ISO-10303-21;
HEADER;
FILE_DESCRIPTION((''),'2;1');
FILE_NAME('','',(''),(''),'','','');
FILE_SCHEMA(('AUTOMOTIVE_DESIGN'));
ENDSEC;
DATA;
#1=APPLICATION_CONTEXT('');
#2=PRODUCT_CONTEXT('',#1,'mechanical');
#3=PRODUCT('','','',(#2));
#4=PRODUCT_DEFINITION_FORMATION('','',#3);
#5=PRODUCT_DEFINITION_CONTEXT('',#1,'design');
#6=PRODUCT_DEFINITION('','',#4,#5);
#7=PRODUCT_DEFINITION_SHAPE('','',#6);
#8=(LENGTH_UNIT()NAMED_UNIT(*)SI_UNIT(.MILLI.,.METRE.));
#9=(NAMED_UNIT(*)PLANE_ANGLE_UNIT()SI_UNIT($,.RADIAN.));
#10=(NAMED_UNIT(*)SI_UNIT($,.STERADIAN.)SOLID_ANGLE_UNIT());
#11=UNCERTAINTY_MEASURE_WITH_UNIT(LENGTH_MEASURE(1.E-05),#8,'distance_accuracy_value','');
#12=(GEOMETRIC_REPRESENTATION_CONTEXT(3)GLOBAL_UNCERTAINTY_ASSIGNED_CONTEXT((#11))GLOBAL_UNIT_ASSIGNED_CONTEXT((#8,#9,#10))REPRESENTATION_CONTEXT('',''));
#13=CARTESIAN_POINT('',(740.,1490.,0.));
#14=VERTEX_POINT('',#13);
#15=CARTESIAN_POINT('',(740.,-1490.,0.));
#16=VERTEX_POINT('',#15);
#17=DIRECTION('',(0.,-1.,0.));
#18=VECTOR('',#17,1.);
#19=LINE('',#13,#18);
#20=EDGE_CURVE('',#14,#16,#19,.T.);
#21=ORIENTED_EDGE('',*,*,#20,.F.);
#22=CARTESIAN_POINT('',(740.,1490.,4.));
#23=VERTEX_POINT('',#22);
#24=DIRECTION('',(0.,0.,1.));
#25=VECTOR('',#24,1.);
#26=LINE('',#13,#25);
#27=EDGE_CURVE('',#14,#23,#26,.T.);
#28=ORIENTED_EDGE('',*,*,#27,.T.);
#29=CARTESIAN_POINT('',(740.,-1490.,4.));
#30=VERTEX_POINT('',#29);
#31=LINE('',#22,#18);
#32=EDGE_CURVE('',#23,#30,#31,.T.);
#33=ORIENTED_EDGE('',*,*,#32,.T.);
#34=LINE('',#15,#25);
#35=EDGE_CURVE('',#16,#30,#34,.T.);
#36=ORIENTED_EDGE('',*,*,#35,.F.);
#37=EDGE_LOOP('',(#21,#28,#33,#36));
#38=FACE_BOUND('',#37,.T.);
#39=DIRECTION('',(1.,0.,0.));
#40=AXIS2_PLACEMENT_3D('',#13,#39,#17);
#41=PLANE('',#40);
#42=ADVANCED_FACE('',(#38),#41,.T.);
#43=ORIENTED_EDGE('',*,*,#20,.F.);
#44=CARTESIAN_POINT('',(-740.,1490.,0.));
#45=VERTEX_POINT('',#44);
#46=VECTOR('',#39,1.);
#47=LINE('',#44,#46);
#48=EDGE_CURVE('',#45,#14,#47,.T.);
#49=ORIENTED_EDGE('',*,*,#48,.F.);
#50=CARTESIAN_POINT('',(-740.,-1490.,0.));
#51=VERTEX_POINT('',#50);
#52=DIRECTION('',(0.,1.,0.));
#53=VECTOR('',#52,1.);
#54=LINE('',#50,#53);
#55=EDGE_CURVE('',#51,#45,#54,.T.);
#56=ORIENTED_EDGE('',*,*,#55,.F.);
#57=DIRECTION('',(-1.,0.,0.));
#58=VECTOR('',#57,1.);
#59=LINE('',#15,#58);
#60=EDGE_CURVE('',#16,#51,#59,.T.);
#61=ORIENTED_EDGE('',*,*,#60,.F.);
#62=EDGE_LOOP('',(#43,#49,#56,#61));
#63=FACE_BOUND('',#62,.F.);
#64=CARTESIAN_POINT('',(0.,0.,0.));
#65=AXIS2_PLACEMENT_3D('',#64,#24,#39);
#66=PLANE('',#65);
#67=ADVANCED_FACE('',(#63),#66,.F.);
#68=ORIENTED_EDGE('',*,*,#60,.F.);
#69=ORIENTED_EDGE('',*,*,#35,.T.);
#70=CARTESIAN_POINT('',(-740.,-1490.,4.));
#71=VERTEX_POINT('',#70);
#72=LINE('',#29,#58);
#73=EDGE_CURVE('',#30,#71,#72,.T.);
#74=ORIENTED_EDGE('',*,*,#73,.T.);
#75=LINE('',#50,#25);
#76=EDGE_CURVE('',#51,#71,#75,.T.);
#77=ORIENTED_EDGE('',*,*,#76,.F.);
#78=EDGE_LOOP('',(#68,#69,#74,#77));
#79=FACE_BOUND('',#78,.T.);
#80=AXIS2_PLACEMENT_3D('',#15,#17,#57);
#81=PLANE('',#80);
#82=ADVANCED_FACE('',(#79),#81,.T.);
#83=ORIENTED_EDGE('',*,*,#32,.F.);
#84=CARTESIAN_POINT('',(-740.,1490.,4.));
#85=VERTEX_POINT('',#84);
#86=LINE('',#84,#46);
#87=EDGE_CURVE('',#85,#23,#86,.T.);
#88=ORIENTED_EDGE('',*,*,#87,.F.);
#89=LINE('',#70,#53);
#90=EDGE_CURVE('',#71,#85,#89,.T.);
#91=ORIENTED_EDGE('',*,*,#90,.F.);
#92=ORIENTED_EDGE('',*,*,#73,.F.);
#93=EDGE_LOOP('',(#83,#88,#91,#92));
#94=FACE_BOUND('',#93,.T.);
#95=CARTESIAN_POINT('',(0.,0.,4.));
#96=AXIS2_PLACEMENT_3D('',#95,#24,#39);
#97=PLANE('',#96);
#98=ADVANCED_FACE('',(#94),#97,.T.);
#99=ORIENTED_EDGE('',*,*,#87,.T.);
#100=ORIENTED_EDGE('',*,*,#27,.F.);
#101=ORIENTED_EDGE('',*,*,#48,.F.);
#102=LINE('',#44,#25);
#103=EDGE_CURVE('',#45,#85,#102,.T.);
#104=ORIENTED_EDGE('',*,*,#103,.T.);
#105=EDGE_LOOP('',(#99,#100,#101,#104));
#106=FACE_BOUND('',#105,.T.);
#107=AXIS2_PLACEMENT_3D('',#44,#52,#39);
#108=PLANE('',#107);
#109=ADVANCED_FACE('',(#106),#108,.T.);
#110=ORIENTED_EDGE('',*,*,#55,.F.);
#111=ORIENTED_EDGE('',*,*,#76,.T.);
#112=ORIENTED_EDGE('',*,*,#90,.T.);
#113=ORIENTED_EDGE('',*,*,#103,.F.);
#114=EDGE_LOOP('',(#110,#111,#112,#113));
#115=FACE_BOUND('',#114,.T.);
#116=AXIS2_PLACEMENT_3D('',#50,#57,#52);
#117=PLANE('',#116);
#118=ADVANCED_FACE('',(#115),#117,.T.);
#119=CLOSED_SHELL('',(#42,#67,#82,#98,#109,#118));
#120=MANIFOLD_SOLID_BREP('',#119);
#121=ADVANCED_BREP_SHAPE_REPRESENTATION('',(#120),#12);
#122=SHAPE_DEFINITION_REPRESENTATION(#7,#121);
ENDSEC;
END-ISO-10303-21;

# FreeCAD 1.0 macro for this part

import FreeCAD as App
import Part
import Sketcher

doc = App.newDocument("Part")
params = doc.addObject("Spreadsheet::Sheet", "Params")
for row, (alias, value) in enumerate([
    ("sketch1_width", "1480 mm"),
    ("sketch1_height", "2980 mm"),
    ("pad1_length", "4 mm"),
], start=1):
    params.set(f"A{row}", alias)
    params.set(f"B{row}", "=" + value)
    params.setAlias(f"B{row}", alias)

body = doc.addObject("PartDesign::Body", "Body")

sketch1 = body.newObject("Sketcher::SketchObject", "Sketch")
sketch1.AttachmentSupport = (doc.getObject("XY_Plane"), [""])
sketch1.MapMode = "FlatFace"
sketch1.addGeometry([
    Part.LineSegment(App.Vector(-740, -1490, 0), App.Vector(740, -1490, 0)),
    Part.LineSegment(App.Vector(740, -1490, 0), App.Vector(740, 1490, 0)),
    Part.LineSegment(App.Vector(740, 1490, 0), App.Vector(-740, 1490, 0)),
    Part.LineSegment(App.Vector(-740, 1490, 0), App.Vector(-740, -1490, 0)),
], False)
sketch1.addConstraint([
    Sketcher.Constraint("Coincident", 0, 2, 1, 1),
    Sketcher.Constraint("Coincident", 1, 2, 2, 1),
    Sketcher.Constraint("Coincident", 2, 2, 3, 1),
    Sketcher.Constraint("Coincident", 3, 2, 0, 1),
    Sketcher.Constraint("Horizontal", 0),
    Sketcher.Constraint("Vertical", 1),
    Sketcher.Constraint("Horizontal", 2),
    Sketcher.Constraint("Vertical", 3),
    Sketcher.Constraint("Symmetric", 0, 2, 2, 2, -1, 1),
    Sketcher.Constraint("DistanceX", 0, 1, 0, 2, 1480.0),
    Sketcher.Constraint("DistanceY", 1, 1, 1, 2, 2980.0),
])
sketch1.setExpression("Constraints[9]", "Params.sketch1_width")
sketch1.setExpression("Constraints[10]", "Params.sketch1_height")
pad1 = body.newObject("PartDesign::Pad", "Pad")
pad1.Profile = sketch1
pad1.setExpression("Length", "Params.pad1_length")

doc.recompute()
